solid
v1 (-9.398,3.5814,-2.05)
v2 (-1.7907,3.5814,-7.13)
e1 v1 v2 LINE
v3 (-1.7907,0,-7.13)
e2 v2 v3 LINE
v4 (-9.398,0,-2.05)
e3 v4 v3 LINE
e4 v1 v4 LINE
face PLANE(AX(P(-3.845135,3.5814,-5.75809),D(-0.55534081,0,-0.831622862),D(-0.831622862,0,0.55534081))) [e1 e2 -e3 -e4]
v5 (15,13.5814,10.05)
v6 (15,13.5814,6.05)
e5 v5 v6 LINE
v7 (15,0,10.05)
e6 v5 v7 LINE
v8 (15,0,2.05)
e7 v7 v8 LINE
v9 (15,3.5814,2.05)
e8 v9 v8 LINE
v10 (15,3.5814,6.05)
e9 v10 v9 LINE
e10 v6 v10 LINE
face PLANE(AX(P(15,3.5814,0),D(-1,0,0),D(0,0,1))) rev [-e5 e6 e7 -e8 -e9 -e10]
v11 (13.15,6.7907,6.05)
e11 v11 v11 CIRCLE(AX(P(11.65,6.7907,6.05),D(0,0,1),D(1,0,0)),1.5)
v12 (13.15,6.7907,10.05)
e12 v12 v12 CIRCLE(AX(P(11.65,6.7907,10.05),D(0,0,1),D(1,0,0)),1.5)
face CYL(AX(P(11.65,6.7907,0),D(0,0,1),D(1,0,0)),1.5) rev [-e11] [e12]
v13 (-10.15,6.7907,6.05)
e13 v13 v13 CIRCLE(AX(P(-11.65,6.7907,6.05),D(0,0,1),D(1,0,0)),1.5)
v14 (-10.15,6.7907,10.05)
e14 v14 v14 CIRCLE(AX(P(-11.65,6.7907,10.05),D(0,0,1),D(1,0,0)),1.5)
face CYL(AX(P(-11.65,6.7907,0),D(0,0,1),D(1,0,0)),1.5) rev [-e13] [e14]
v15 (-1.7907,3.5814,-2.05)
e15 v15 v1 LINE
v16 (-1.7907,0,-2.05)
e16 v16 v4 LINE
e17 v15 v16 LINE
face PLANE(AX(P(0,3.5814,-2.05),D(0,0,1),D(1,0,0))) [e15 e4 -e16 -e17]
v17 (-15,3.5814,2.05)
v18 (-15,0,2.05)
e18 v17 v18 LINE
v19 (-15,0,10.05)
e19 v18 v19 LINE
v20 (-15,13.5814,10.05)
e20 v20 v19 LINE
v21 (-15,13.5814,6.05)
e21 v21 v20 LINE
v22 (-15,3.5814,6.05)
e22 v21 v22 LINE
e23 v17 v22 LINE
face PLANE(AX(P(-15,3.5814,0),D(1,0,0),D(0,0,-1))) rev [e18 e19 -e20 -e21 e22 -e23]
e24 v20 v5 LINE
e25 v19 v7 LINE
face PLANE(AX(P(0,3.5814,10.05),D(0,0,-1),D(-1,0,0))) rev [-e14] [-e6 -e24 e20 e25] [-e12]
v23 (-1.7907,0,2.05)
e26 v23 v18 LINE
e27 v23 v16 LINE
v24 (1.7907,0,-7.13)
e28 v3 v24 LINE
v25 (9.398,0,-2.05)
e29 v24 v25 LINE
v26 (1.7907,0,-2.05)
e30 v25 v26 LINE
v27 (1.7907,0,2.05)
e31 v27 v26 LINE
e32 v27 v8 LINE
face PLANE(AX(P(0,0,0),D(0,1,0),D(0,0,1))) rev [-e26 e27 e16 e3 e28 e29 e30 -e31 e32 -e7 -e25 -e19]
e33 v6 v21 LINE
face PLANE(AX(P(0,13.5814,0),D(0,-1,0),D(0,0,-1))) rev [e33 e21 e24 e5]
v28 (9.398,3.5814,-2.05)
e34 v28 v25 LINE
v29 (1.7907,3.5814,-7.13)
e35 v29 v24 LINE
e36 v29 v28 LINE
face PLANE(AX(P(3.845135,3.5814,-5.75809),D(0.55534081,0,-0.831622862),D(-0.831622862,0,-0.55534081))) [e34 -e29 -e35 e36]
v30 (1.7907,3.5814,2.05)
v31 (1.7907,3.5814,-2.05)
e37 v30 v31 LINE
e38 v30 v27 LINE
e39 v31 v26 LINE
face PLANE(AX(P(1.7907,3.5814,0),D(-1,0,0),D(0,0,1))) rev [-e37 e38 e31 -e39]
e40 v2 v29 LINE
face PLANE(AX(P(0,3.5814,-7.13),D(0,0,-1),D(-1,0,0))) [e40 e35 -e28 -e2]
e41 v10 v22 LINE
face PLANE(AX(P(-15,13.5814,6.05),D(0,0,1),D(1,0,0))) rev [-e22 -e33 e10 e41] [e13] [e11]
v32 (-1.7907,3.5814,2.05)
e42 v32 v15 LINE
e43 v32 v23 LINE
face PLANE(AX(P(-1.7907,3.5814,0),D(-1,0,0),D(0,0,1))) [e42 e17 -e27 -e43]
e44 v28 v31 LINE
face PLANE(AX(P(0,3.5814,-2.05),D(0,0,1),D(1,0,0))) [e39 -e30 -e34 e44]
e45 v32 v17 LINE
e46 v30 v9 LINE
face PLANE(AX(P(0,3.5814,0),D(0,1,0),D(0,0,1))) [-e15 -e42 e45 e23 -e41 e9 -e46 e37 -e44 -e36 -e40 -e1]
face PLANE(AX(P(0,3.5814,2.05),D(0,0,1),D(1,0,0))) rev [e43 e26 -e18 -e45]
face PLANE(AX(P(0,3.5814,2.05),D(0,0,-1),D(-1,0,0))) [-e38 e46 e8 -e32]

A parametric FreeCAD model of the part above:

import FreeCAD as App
import Part
import Sketcher

V = App.Vector

doc = App.newDocument("Part")
params = doc.addObject("Spreadsheet::Sheet", "Params")
for row, (alias, value) in enumerate([
    ("sketch1_width", "30 mm"),
    ("sketch1_height", "8 mm"),
    ("sketch1_height2", "4.1 mm"),
    ("pad1_length", "3.5814 mm"),
    ("sketch2_width", "30 mm"),
    ("sketch2_height", "4 mm"),
    ("pad2_length", "10 mm"),
    ("sketch3_diameter", "3 mm"),
    ("pocket1_length", "4 mm"),
], start=1):
    params.set(f"A{row}", alias)
    params.set(f"B{row}", "=" + value)
    params.setAlias(f"B{row}", alias)

body = doc.addObject("PartDesign::Body", "Body")

sketch1 = doc.addObject("Sketcher::SketchObject", "Sketch")
body.addObject(sketch1)
sketch1.AttachmentSupport = (doc.XZ_Plane, [""])
sketch1.MapMode = "FlatFace"
sketch1.addGeometry(Part.LineSegment(V(-15, 10.05, 0), V(15, 10.05, 0)), False)
sketch1.addGeometry(Part.LineSegment(V(15, 10.05, 0), V(15, 2.05, 0)), False)
sketch1.addGeometry(Part.LineSegment(V(15, 2.05, 0), V(1.7907, 2.05, 0)), False)
sketch1.addGeometry(Part.LineSegment(V(1.7907, 2.05, 0), V(1.7907, -2.05, 0)), False)
sketch1.addGeometry(Part.LineSegment(V(1.7907, -2.05, 0), V(9.398, -2.05, 0)), False)
sketch1.addGeometry(Part.LineSegment(V(9.398, -2.05, 0), V(1.7907, -7.13, 0)), False)
sketch1.addGeometry(Part.LineSegment(V(1.7907, -7.13, 0), V(-1.7907, -7.13, 0)), False)
sketch1.addGeometry(Part.LineSegment(V(-1.7907, -7.13, 0), V(-9.398, -2.05, 0)), False)
sketch1.addGeometry(Part.LineSegment(V(-9.398, -2.05, 0), V(-1.7907, -2.05, 0)), False)
sketch1.addGeometry(Part.LineSegment(V(-1.7907, -2.05, 0), V(-1.7907, 2.05, 0)), False)
sketch1.addGeometry(Part.LineSegment(V(-1.7907, 2.05, 0), V(-15, 2.05, 0)), False)
sketch1.addGeometry(Part.LineSegment(V(-15, 2.05, 0), V(-15, 10.05, 0)), False)
sketch1.addConstraint(Sketcher.Constraint("Coincident", 0, 2, 1, 1))
sketch1.addConstraint(Sketcher.Constraint("Coincident", 1, 2, 2, 1))
sketch1.addConstraint(Sketcher.Constraint("Coincident", 2, 2, 3, 1))
sketch1.addConstraint(Sketcher.Constraint("Coincident", 3, 2, 4, 1))
sketch1.addConstraint(Sketcher.Constraint("Coincident", 4, 2, 5, 1))
sketch1.addConstraint(Sketcher.Constraint("Coincident", 5, 2, 6, 1))
sketch1.addConstraint(Sketcher.Constraint("Coincident", 6, 2, 7, 1))
sketch1.addConstraint(Sketcher.Constraint("Coincident", 7, 2, 8, 1))
sketch1.addConstraint(Sketcher.Constraint("Coincident", 8, 2, 9, 1))
sketch1.addConstraint(Sketcher.Constraint("Coincident", 9, 2, 10, 1))
sketch1.addConstraint(Sketcher.Constraint("Coincident", 10, 2, 11, 1))
sketch1.addConstraint(Sketcher.Constraint("Coincident", 11, 2, 0, 1))
sketch1.addConstraint(Sketcher.Constraint("Horizontal", 0))
sketch1.addConstraint(Sketcher.Constraint("Vertical", 1))
sketch1.addConstraint(Sketcher.Constraint("Horizontal", 2))
sketch1.addConstraint(Sketcher.Constraint("Vertical", 3))
sketch1.addConstraint(Sketcher.Constraint("Horizontal", 4))
sketch1.addConstraint(Sketcher.Constraint("Horizontal", 6))
sketch1.addConstraint(Sketcher.Constraint("Horizontal", 8))
sketch1.addConstraint(Sketcher.Constraint("Vertical", 9))
sketch1.addConstraint(Sketcher.Constraint("Horizontal", 10))
sketch1.addConstraint(Sketcher.Constraint("Vertical", 11))
sketch1.addConstraint(Sketcher.Constraint("Symmetric", 2, 2, 8, 2, -1, 1))
sketch1.addConstraint(Sketcher.Constraint("Symmetric", 4, 2, 7, 2, -2))
sketch1.addConstraint(Sketcher.Constraint("Symmetric", 1, 2, 10, 2, -2))
sketch1.addConstraint(Sketcher.Constraint("Vertical", 3, 2, 5, 2))
sketch1.addConstraint(Sketcher.Constraint("Vertical", 6, 2, 8, 2))
sketch1.addConstraint(Sketcher.Constraint("DistanceX", 0, 1, 0, 2, 30.0))
sketch1.addConstraint(Sketcher.Constraint("DistanceY", 1, 2, 1, 1, 8.0))
sketch1.addConstraint(Sketcher.Constraint("DistanceY", 3, 2, 3, 1, 4.1))
sketch1.addConstraint(Sketcher.Constraint("DistanceY", 5, 2, -1, 1, 7.13))
sketch1.addConstraint(Sketcher.Constraint("DistanceX", 2, 2, 2, 1, 13.2093))
sketch1.addConstraint(Sketcher.Constraint("DistanceX", 4, 1, 4, 2, 7.6073))
sketch1.setExpression("Constraints[27]", "Params.sketch1_width")
sketch1.setExpression("Constraints[28]", "Params.sketch1_height")
sketch1.setExpression("Constraints[29]", "Params.sketch1_height2")
pad1 = doc.addObject("PartDesign::Pad", "Pad")
body.addObject(pad1)
pad1.Profile = sketch1
pad1.setExpression("Length", "Params.pad1_length")
pad1.Reversed = True

sketch2 = doc.addObject("Sketcher::SketchObject", "Sketch001")
body.addObject(sketch2)
sketch2.AttachmentSupport = (doc.XZ_Plane, [""])
sketch2.MapMode = "FlatFace"
sketch2.AttachmentOffset = App.Placement(V(0, 0, -3.5814), App.Rotation())
sketch2.addGeometry(Part.LineSegment(V(-15, 6.05, 0), V(-15, 10.05, 0)), False)
sketch2.addGeometry(Part.LineSegment(V(-15, 10.05, 0), V(15, 10.05, 0)), False)
sketch2.addGeometry(Part.LineSegment(V(15, 10.05, 0), V(15, 6.05, 0)), False)
sketch2.addGeometry(Part.LineSegment(V(15, 6.05, 0), V(-15, 6.05, 0)), False)
sketch2.addConstraint(Sketcher.Constraint("Coincident", 0, 2, 1, 1))
sketch2.addConstraint(Sketcher.Constraint("Coincident", 1, 2, 2, 1))
sketch2.addConstraint(Sketcher.Constraint("Coincident", 2, 2, 3, 1))
sketch2.addConstraint(Sketcher.Constraint("Coincident", 3, 2, 0, 1))
sketch2.addConstraint(Sketcher.Constraint("Vertical", 0))
sketch2.addConstraint(Sketcher.Constraint("Horizontal", 1))
sketch2.addConstraint(Sketcher.Constraint("Vertical", 2))
sketch2.addConstraint(Sketcher.Constraint("Horizontal", 3))
sketch2.addConstraint(Sketcher.Constraint("DistanceX", 1, 1, 1, 2, 30.0))
sketch2.addConstraint(Sketcher.Constraint("DistanceY", 0, 1, 0, 2, 4.0))
sketch2.addConstraint(Sketcher.Constraint("DistanceX", 0, 2, -1, 1, 15.0))
sketch2.addConstraint(Sketcher.Constraint("DistanceY", -1, 1, 0, 2, 10.05))
sketch2.setExpression("Constraints[8]", "Params.sketch2_width")
sketch2.setExpression("Constraints[9]", "Params.sketch2_height")
pad2 = doc.addObject("PartDesign::Pad", "Pad001")
body.addObject(pad2)
pad2.Profile = sketch2
pad2.setExpression("Length", "Params.pad2_length")
pad2.Reversed = True

sketch3 = doc.addObject("Sketcher::SketchObject", "Sketch002")
body.addObject(sketch3)
sketch3.AttachmentSupport = (doc.XY_Plane, [""])
sketch3.MapMode = "FlatFace"
sketch3.AttachmentOffset = App.Placement(V(0, 0, 10.05), App.Rotation())
sketch3.addGeometry(Part.Circle(V(-11.65, 6.7907, 0), V(0, 0, 1), 1.5), False)
sketch3.addGeometry(Part.Circle(V(11.65, 6.7907, 0), V(0, 0, 1), 1.5), False)
sketch3.addConstraint(Sketcher.Constraint("Equal", 0, 1))
sketch3.addConstraint(Sketcher.Constraint("Symmetric", 0, 3, 1, 3, -2))
sketch3.addConstraint(Sketcher.Constraint("Diameter", 0, 3.0))
sketch3.addConstraint(Sketcher.Constraint("DistanceX", 0, 3, 1, 3, 23.3))
sketch3.addConstraint(Sketcher.Constraint("DistanceY", -1, 1, 0, 3, 6.7907))
sketch3.setExpression("Constraints[2]", "Params.sketch3_diameter")
pocket1 = doc.addObject("PartDesign::Pocket", "Pocket")
body.addObject(pocket1)
pocket1.Profile = sketch3
pocket1.setExpression("Length", "Params.pocket1_length")

doc.recompute()
